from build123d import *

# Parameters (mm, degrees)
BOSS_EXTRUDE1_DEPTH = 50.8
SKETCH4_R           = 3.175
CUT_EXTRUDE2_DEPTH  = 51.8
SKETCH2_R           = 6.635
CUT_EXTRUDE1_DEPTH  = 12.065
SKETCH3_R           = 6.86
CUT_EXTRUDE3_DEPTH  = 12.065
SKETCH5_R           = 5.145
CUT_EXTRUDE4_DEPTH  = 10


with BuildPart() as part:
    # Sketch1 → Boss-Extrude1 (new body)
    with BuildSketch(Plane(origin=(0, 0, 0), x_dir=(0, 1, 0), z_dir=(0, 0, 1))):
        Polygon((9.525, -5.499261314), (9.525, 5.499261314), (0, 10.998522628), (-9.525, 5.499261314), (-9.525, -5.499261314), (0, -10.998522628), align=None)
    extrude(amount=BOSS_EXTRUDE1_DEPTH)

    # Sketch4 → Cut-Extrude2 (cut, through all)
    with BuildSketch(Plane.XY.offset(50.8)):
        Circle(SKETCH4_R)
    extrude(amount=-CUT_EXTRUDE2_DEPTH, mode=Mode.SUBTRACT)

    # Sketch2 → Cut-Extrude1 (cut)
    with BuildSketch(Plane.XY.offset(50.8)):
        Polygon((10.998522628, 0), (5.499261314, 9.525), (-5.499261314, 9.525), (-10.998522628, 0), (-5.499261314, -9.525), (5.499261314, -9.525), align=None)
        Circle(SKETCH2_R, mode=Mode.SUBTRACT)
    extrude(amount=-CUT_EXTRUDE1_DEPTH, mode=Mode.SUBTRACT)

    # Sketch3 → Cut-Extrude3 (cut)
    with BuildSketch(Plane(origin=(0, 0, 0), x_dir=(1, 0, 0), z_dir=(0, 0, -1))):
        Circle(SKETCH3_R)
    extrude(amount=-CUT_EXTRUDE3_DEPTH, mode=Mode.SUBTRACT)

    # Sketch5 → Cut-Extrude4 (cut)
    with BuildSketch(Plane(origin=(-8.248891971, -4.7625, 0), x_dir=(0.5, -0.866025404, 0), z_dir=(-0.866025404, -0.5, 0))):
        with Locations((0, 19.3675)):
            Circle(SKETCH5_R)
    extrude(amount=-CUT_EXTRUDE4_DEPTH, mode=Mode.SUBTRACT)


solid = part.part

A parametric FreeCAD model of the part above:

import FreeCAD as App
import Part
import Sketcher

V = App.Vector
Q = App.Units.Quantity


def add_polygon(sketch, points):
    """Adds a closed chain of lines whose ends are joined by coincident constraints."""
    first, n = sketch.GeometryCount, len(points)
    for a, b in zip(points, points[1:] + points[:1]):
        sketch.addGeometry(Part.LineSegment(App.Vector(*a, 0), App.Vector(*b, 0)), False)
    for i in range(n):
        sketch.addConstraint(Sketcher.Constraint("Coincident", first + i, 2, first + (i + 1) % n, 1))

doc = App.newDocument("Part")
body = doc.addObject("PartDesign::Body", "Body")

# Sketch on XY plane
sketch1 = body.newObject("Sketcher::SketchObject", "Sketch")
sketch1.AttachmentSupport = (doc.getObject("XY_Plane"), [""])
sketch1.MapMode = "FlatFace"
add_polygon(sketch1, [(5.499261, 9.525), (-5.499261, 9.525), (-10.998523, 0), (-5.499261, -9.525), (5.499261, -9.525), (10.998523, 0)])  # lines 0-5
sketch1.addConstraint(Sketcher.Constraint("Horizontal", 0))
sketch1.addConstraint(Sketcher.Constraint("Horizontal", 3))
sketch1.addConstraint(Sketcher.Constraint("Symmetric", 0, 2, 3, 2, -1, 1))
sketch1.addConstraint(Sketcher.Constraint("Symmetric", 1, 2, 4, 2, -1, 1))
sketch1.addConstraint(Sketcher.Constraint("PointOnObject", 1, 2, -1))
sketch1.addConstraint(Sketcher.Constraint("Parallel", 2, 5))
sketch1.addConstraint(Sketcher.Constraint("Vertical", 0, 2, 2, 2))
sketch1.addConstraint(Sketcher.Constraint("Angle", 1, Q("-120 deg")))
sketch1.addConstraint(Sketcher.Constraint("DistanceY", 2, 2, 0, 2, Q("0.75 in")))
sketch1.addConstraint(Sketcher.Constraint("DistanceX", 0, 2, 0, 1, 10.998523))
pad1 = body.newObject("PartDesign::Pad", "Pad")
pad1.Profile = sketch1
pad1.Length = Q("2 in")

# Sketch on XY plane
sketch2 = body.newObject("Sketcher::SketchObject", "Sketch001")
sketch2.AttachmentSupport = (doc.getObject("XY_Plane"), [""])
sketch2.MapMode = "FlatFace"
sketch2.AttachmentOffset = App.Placement(V(0, 0, 2 * 25.4), App.Rotation())
sketch2.addGeometry(Part.Circle(V(0, 0, 0), V(0, 0, 1), 3.175), False)
sketch2.addConstraint(Sketcher.Constraint("Coincident", 0, 3, -1, 1))
sketch2.addConstraint(Sketcher.Constraint("Diameter", 0, Q("0.25 in")))
pocket1 = body.newObject("PartDesign::Pocket", "Pocket")
pocket1.Profile = sketch2
pocket1.Type = "ThroughAll"

# Sketch on XY plane
sketch3 = body.newObject("Sketcher::SketchObject", "Sketch002")
sketch3.AttachmentSupport = (doc.getObject("XY_Plane"), [""])
sketch3.MapMode = "FlatFace"
sketch3.AttachmentOffset = App.Placement(V(0, 0, 2 * 25.4), App.Rotation())
add_polygon(sketch3, [(10.998523, 0), (5.499261, 9.525), (-5.499261, 9.525), (-10.998523, 0), (-5.499261, -9.525), (5.499261, -9.525)])  # lines 0-5
sketch3.addGeometry(Part.Circle(V(0, 0, 0), V(0, 0, 1), 6.635), False)  # 6
sketch3.addConstraint(Sketcher.Constraint("Horizontal", 1))
sketch3.addConstraint(Sketcher.Constraint("Horizontal", 4))
sketch3.addConstraint(Sketcher.Constraint("Coincident", 6, 3, -1, 1))
sketch3.addConstraint(Sketcher.Constraint("Symmetric", 0, 2, 3, 2, -1, 1))
sketch3.addConstraint(Sketcher.Constraint("Symmetric", 2, 2, 5, 2, -1, 1))
sketch3.addConstraint(Sketcher.Constraint("PointOnObject", 2, 2, -1))
sketch3.addConstraint(Sketcher.Constraint("Parallel", 2, 5))
sketch3.addConstraint(Sketcher.Constraint("Vertical", 1, 2, 3, 2))
sketch3.addConstraint(Sketcher.Constraint("Angle", 0, Q("120 deg")))
sketch3.addConstraint(Sketcher.Constraint("Diameter", 6, 13.27))
sketch3.addConstraint(Sketcher.Constraint("DistanceY", 3, 2, 1, 2, Q("0.75 in")))
sketch3.addConstraint(Sketcher.Constraint("DistanceX", 1, 2, 1, 1, 10.998523))
pocket2 = body.newObject("PartDesign::Pocket", "Pocket001")
pocket2.Profile = sketch3
pocket2.Length = Q("0.475 in")

# Sketch on XY plane
sketch4 = body.newObject("Sketcher::SketchObject", "Sketch003")
sketch4.AttachmentSupport = (doc.getObject("XY_Plane"), [""])
sketch4.MapMode = "FlatFace"
sketch4.addGeometry(Part.Circle(V(0, 0, 0), V(0, 0, 1), 6.86), False)
sketch4.addConstraint(Sketcher.Constraint("Coincident", 0, 3, -1, 1))
sketch4.addConstraint(Sketcher.Constraint("Diameter", 0, 13.72))
pocket3 = body.newObject("PartDesign::Pocket", "Pocket002")
pocket3.Profile = sketch4
pocket3.Length = Q("0.475 in")
pocket3.Reversed = True

# Sketch on an angled plane
sketch5 = body.newObject("Sketcher::SketchObject", "Sketch004")
sketch5.Placement = App.Placement(V(-8.248892, -4.7625, 0), App.Rotation(V(0.5, -0.866025404, 0), V(0, 0, 1), V(-0.866025404, -0.5, 0), "ZXY"))
sketch5.addGeometry(Part.Circle(V(0, 19.3675, 0), V(0, 0, 1), 5.145), False)
sketch5.addConstraint(Sketcher.Constraint("PointOnObject", 0, 3, -2))
sketch5.addConstraint(Sketcher.Constraint("Diameter", 0, 10.29))
sketch5.addConstraint(Sketcher.Constraint("DistanceY", -1, 1, 0, 3, Q("0.7625 in")))
pocket4 = body.newObject("PartDesign::Pocket", "Pocket003")
pocket4.Profile = sketch5
pocket4.Length = 10

doc.recompute()
